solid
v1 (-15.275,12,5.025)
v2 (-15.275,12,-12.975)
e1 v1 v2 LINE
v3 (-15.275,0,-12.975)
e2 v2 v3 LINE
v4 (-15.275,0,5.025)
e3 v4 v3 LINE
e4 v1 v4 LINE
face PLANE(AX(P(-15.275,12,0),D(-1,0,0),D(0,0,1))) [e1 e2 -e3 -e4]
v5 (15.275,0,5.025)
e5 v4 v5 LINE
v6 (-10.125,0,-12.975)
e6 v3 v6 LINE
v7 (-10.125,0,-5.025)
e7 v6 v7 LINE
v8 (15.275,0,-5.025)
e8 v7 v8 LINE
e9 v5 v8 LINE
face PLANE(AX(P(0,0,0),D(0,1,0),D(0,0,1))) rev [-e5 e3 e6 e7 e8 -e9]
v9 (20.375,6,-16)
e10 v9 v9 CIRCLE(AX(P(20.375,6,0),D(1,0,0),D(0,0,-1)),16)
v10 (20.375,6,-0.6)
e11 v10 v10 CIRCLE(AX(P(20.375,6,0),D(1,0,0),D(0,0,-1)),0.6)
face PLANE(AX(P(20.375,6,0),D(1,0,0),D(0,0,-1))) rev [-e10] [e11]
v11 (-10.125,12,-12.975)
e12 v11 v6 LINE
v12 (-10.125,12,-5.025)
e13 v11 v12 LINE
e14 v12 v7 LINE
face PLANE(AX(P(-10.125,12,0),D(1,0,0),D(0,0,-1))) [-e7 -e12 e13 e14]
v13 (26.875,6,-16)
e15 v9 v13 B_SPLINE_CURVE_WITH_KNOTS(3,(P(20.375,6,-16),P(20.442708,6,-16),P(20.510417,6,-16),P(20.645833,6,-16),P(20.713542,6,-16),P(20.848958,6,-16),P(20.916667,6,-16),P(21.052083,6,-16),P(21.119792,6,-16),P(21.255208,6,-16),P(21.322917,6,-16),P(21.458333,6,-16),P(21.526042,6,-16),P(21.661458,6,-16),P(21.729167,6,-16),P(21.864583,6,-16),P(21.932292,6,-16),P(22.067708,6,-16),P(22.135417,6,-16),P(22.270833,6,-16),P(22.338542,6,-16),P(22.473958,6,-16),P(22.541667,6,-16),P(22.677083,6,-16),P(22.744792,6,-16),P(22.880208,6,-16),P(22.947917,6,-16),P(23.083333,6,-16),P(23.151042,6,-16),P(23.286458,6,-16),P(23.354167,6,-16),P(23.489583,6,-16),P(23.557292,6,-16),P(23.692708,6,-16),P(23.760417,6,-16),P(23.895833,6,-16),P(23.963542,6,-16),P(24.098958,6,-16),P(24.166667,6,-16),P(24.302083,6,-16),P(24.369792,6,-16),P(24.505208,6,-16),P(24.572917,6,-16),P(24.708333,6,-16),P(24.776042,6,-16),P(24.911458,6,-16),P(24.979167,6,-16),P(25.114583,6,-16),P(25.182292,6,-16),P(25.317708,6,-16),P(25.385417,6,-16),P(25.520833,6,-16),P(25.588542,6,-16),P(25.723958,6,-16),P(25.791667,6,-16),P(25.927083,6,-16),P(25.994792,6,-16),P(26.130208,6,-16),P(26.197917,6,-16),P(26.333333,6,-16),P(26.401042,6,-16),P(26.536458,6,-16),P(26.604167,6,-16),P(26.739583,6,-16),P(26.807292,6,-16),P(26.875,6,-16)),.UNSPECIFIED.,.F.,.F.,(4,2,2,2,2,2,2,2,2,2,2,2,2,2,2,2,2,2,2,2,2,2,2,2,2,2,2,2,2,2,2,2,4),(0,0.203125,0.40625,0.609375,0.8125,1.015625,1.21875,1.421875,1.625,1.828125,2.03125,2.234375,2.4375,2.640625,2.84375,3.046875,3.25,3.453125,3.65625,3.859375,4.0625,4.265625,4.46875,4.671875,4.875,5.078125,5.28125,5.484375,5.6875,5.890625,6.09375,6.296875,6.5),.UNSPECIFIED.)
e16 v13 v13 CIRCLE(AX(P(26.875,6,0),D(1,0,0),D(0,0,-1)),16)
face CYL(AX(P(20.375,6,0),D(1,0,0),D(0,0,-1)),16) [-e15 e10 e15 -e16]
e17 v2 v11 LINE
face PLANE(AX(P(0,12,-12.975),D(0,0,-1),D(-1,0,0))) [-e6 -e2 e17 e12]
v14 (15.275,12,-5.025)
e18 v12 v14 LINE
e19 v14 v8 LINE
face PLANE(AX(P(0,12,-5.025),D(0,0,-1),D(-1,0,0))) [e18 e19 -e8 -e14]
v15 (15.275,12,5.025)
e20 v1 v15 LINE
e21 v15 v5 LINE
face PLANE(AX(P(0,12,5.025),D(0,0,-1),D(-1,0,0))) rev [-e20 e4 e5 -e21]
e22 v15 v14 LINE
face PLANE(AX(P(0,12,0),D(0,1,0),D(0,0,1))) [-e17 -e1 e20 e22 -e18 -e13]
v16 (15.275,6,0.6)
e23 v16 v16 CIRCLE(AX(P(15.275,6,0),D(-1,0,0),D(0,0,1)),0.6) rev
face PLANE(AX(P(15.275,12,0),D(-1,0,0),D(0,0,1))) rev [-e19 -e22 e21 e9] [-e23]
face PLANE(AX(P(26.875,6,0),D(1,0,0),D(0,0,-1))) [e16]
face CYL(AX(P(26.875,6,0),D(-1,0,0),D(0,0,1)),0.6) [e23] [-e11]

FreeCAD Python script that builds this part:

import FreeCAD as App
import Part
import Sketcher

V = App.Vector

doc = App.newDocument("Part")
body = doc.addObject("PartDesign::Body", "Body")

sketch1 = body.newObject("Sketcher::SketchObject", "Sketch")
sketch1.AttachmentSupport = (doc.getObject("XZ_Plane"), [""])
sketch1.MapMode = "FlatFace"
sketch1.addGeometry([
    Part.LineSegment(V(15, 5, 0), V(15, -5, 0)),
    Part.LineSegment(V(15, -5, 0), V(-10, -5, 0)),
    Part.LineSegment(V(-10, -5, 0), V(-10, -13, 0)),
    Part.LineSegment(V(-10, -13, 0), V(-15, -13, 0)),
    Part.LineSegment(V(-15, -13, 0), V(-15, 5, 0)),
    Part.LineSegment(V(-15, 5, 0), V(15, 5, 0)),
], False)
sketch1.addConstraint([
    Sketcher.Constraint("Coincident", 0, 2, 1, 1),
    Sketcher.Constraint("Coincident", 1, 2, 2, 1),
    Sketcher.Constraint("Coincident", 2, 2, 3, 1),
    Sketcher.Constraint("Coincident", 3, 2, 4, 1),
    Sketcher.Constraint("Coincident", 4, 2, 5, 1),
    Sketcher.Constraint("Coincident", 5, 2, 0, 1),
    Sketcher.Constraint("Vertical", 0),
    Sketcher.Constraint("Horizontal", 1),
    Sketcher.Constraint("Vertical", 2),
    Sketcher.Constraint("Horizontal", 3),
    Sketcher.Constraint("Vertical", 4),
    Sketcher.Constraint("Horizontal", 5),
    Sketcher.Constraint("Symmetric", 0, 2, 4, 2, -1, 1),
    Sketcher.Constraint("DistanceY", 4, 1, 4, 2, 18.0),
    Sketcher.Constraint("DistanceX", 1, 2, 1, 1, 25.4),
    Sketcher.Constraint("DistanceX", 3, 2, 3, 1, 5.15),
    Sketcher.Constraint("DistanceY", 0, 2, 0, 1, 10.05),
])
pad1 = body.newObject("PartDesign::Pad", "Pad")
pad1.Profile = sketch1
pad1.Length = 12
pad1.Reversed = True

sketch2 = body.newObject("Sketcher::SketchObject", "Sketch001")
sketch2.AttachmentSupport = (doc.getObject("YZ_Plane"), [""])
sketch2.MapMode = "FlatFace"
sketch2.AttachmentOffset = App.Placement(V(0, 0, 15.275), App.Rotation())
sketch2.addGeometry(Part.Circle(V(6, 0, 0), V(0, 0, 1), 0.6), False)
sketch2.addConstraint([
    Sketcher.Constraint("PointOnObject", 0, 3, -1),
    Sketcher.Constraint("Diameter", 0, 1.2),
    Sketcher.Constraint("DistanceX", -1, 1, 0, 3, 6.0),
])
pad2 = body.newObject("PartDesign::Pad", "Pad001")
pad2.Profile = sketch2
pad2.Length = 11.6

sketch3 = body.newObject("Sketcher::SketchObject", "Sketch002")
sketch3.AttachmentSupport = (doc.getObject("YZ_Plane"), [""])
sketch3.MapMode = "FlatFace"
sketch3.AttachmentOffset = App.Placement(V(0, 0, 26.875), App.Rotation())
sketch3.addGeometry(Part.Circle(V(6, 0, 0), V(0, 0, 1), 16), False)
sketch3.addConstraint([
    Sketcher.Constraint("PointOnObject", 0, 3, -1),
    Sketcher.Constraint("Diameter", 0, 32.0),
    Sketcher.Constraint("DistanceX", -1, 1, 0, 3, 6.0),
])
pad3 = body.newObject("PartDesign::Pad", "Pad002")
pad3.Profile = sketch3
pad3.Length = 6.5
pad3.Reversed = True

doc.recompute()
